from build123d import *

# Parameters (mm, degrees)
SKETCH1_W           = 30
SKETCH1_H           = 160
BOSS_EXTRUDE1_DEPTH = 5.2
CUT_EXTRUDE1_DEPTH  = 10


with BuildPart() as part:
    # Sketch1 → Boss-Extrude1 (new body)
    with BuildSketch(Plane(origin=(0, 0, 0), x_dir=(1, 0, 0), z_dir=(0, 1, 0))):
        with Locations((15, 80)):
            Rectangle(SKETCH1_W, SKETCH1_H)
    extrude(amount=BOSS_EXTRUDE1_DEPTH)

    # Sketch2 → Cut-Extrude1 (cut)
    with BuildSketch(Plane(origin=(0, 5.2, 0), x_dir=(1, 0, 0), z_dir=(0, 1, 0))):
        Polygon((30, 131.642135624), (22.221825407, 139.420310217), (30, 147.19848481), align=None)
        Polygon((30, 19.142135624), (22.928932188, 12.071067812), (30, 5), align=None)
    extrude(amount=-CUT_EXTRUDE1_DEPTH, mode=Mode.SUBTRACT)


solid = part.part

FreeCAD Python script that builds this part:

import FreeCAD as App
import Part
import Sketcher
Q = App.Units.Quantity

doc = App.newDocument("Part")
params = doc.addObject("Spreadsheet::Sheet", "Params")
for row, (alias, value) in enumerate([
    ("sketch1_width", "30 mm"),
    ("sketch1_height", "160 mm"),
    ("pad1_length", "5.2 mm"),
    ("sketch2_length", "11 mm"),
    ("sketch2_length2", "10 mm"),
    ("pocket1_length", "10 mm"),
], start=1):
    params.set(f"A{row}", alias)
    params.set(f"B{row}", "=" + value)
    params.setAlias(f"B{row}", alias)

body = doc.addObject("PartDesign::Body", "Body")

sketch1 = body.newObject("Sketcher::SketchObject", "Sketch")
sketch1.AttachmentSupport = (doc.getObject("XZ_Plane"), [""])
sketch1.MapMode = "FlatFace"
sketch1.addGeometry([
    Part.LineSegment(App.Vector(0, -160, 0), App.Vector(0, 0, 0)),
    Part.LineSegment(App.Vector(0, 0, 0), App.Vector(30, 0, 0)),
    Part.LineSegment(App.Vector(30, 0, 0), App.Vector(30, -160, 0)),
    Part.LineSegment(App.Vector(30, -160, 0), App.Vector(0, -160, 0)),
], False)
sketch1.addConstraint([
    Sketcher.Constraint("Coincident", 0, 2, 1, 1),
    Sketcher.Constraint("Coincident", 1, 2, 2, 1),
    Sketcher.Constraint("Coincident", 2, 2, 3, 1),
    Sketcher.Constraint("Coincident", 3, 2, 0, 1),
    Sketcher.Constraint("Vertical", 0),
    Sketcher.Constraint("Horizontal", 1),
    Sketcher.Constraint("Vertical", 2),
    Sketcher.Constraint("Horizontal", 3),
    Sketcher.Constraint("Coincident", 0, 2, -1, 1),
    Sketcher.Constraint("DistanceX", 1, 1, 1, 2, Q("30 mm")),
    Sketcher.Constraint("DistanceY", 0, 1, 0, 2, Q("160 mm")),
])
sketch1.setExpression("Constraints[9]", "Params.sketch1_width")
sketch1.setExpression("Constraints[10]", "Params.sketch1_height")
pad1 = body.newObject("PartDesign::Pad", "Pad")
pad1.Profile = sketch1
pad1.setExpression("Length", "Params.pad1_length")
pad1.Reversed = True

sketch2 = body.newObject("Sketcher::SketchObject", "Sketch001")
sketch2.AttachmentSupport = (doc.getObject("XZ_Plane"), [""])
sketch2.MapMode = "FlatFace"
sketch2.AttachmentOffset = App.Placement(App.Vector(0, 0, -5.2), App.Rotation())
sketch2.addGeometry([
    Part.LineSegment(App.Vector(22.221825, -139.42031, 0), App.Vector(30, -131.642136, 0)),
    Part.LineSegment(App.Vector(30, -131.642136, 0), App.Vector(30, -147.198485, 0)),
    Part.LineSegment(App.Vector(30, -147.198485, 0), App.Vector(22.221825, -139.42031, 0)),
    Part.LineSegment(App.Vector(30, -19.142136, 0), App.Vector(22.928932, -12.071068, 0)),
    Part.LineSegment(App.Vector(22.928932, -12.071068, 0), App.Vector(30, -5, 0)),
    Part.LineSegment(App.Vector(30, -5, 0), App.Vector(30, -19.142136, 0)),
], False)
sketch2.addConstraint([
    Sketcher.Constraint("Coincident", 0, 2, 1, 1),
    Sketcher.Constraint("Coincident", 1, 2, 2, 1),
    Sketcher.Constraint("Coincident", 2, 2, 0, 1),
    Sketcher.Constraint("Coincident", 3, 2, 4, 1),
    Sketcher.Constraint("Coincident", 4, 2, 5, 1),
    Sketcher.Constraint("Coincident", 5, 2, 3, 1),
    Sketcher.Constraint("Vertical", 1),
    Sketcher.Constraint("Vertical", 5),
    Sketcher.Constraint("Perpendicular", 0, 2),
    Sketcher.Constraint("Parallel", 2, 3),
    Sketcher.Constraint("Perpendicular", 3, 4),
    Sketcher.Constraint("Vertical", 1, 2, 4, 2),
    Sketcher.Constraint("Equal", 0, 2),
    Sketcher.Constraint("Distance", 0, Q("11 mm")),
    Sketcher.Constraint("Distance", 3, Q("10 mm")),
    Sketcher.Constraint("DistanceX", -1, 1, 0, 2, Q("30 mm")),
    Sketcher.Constraint("DistanceY", 4, 2, -1, 1, Q("5 mm")),
    Sketcher.Constraint("DistanceY", 0, 2, 5, 2, Q("112.5 mm")),
])
sketch2.setExpression("Constraints[13]", "Params.sketch2_length")
sketch2.setExpression("Constraints[14]", "Params.sketch2_length2")
pocket1 = body.newObject("PartDesign::Pocket", "Pocket")
pocket1.Profile = sketch2
pocket1.setExpression("Length", "Params.pocket1_length")
pocket1.Reversed = True

doc.recompute()
